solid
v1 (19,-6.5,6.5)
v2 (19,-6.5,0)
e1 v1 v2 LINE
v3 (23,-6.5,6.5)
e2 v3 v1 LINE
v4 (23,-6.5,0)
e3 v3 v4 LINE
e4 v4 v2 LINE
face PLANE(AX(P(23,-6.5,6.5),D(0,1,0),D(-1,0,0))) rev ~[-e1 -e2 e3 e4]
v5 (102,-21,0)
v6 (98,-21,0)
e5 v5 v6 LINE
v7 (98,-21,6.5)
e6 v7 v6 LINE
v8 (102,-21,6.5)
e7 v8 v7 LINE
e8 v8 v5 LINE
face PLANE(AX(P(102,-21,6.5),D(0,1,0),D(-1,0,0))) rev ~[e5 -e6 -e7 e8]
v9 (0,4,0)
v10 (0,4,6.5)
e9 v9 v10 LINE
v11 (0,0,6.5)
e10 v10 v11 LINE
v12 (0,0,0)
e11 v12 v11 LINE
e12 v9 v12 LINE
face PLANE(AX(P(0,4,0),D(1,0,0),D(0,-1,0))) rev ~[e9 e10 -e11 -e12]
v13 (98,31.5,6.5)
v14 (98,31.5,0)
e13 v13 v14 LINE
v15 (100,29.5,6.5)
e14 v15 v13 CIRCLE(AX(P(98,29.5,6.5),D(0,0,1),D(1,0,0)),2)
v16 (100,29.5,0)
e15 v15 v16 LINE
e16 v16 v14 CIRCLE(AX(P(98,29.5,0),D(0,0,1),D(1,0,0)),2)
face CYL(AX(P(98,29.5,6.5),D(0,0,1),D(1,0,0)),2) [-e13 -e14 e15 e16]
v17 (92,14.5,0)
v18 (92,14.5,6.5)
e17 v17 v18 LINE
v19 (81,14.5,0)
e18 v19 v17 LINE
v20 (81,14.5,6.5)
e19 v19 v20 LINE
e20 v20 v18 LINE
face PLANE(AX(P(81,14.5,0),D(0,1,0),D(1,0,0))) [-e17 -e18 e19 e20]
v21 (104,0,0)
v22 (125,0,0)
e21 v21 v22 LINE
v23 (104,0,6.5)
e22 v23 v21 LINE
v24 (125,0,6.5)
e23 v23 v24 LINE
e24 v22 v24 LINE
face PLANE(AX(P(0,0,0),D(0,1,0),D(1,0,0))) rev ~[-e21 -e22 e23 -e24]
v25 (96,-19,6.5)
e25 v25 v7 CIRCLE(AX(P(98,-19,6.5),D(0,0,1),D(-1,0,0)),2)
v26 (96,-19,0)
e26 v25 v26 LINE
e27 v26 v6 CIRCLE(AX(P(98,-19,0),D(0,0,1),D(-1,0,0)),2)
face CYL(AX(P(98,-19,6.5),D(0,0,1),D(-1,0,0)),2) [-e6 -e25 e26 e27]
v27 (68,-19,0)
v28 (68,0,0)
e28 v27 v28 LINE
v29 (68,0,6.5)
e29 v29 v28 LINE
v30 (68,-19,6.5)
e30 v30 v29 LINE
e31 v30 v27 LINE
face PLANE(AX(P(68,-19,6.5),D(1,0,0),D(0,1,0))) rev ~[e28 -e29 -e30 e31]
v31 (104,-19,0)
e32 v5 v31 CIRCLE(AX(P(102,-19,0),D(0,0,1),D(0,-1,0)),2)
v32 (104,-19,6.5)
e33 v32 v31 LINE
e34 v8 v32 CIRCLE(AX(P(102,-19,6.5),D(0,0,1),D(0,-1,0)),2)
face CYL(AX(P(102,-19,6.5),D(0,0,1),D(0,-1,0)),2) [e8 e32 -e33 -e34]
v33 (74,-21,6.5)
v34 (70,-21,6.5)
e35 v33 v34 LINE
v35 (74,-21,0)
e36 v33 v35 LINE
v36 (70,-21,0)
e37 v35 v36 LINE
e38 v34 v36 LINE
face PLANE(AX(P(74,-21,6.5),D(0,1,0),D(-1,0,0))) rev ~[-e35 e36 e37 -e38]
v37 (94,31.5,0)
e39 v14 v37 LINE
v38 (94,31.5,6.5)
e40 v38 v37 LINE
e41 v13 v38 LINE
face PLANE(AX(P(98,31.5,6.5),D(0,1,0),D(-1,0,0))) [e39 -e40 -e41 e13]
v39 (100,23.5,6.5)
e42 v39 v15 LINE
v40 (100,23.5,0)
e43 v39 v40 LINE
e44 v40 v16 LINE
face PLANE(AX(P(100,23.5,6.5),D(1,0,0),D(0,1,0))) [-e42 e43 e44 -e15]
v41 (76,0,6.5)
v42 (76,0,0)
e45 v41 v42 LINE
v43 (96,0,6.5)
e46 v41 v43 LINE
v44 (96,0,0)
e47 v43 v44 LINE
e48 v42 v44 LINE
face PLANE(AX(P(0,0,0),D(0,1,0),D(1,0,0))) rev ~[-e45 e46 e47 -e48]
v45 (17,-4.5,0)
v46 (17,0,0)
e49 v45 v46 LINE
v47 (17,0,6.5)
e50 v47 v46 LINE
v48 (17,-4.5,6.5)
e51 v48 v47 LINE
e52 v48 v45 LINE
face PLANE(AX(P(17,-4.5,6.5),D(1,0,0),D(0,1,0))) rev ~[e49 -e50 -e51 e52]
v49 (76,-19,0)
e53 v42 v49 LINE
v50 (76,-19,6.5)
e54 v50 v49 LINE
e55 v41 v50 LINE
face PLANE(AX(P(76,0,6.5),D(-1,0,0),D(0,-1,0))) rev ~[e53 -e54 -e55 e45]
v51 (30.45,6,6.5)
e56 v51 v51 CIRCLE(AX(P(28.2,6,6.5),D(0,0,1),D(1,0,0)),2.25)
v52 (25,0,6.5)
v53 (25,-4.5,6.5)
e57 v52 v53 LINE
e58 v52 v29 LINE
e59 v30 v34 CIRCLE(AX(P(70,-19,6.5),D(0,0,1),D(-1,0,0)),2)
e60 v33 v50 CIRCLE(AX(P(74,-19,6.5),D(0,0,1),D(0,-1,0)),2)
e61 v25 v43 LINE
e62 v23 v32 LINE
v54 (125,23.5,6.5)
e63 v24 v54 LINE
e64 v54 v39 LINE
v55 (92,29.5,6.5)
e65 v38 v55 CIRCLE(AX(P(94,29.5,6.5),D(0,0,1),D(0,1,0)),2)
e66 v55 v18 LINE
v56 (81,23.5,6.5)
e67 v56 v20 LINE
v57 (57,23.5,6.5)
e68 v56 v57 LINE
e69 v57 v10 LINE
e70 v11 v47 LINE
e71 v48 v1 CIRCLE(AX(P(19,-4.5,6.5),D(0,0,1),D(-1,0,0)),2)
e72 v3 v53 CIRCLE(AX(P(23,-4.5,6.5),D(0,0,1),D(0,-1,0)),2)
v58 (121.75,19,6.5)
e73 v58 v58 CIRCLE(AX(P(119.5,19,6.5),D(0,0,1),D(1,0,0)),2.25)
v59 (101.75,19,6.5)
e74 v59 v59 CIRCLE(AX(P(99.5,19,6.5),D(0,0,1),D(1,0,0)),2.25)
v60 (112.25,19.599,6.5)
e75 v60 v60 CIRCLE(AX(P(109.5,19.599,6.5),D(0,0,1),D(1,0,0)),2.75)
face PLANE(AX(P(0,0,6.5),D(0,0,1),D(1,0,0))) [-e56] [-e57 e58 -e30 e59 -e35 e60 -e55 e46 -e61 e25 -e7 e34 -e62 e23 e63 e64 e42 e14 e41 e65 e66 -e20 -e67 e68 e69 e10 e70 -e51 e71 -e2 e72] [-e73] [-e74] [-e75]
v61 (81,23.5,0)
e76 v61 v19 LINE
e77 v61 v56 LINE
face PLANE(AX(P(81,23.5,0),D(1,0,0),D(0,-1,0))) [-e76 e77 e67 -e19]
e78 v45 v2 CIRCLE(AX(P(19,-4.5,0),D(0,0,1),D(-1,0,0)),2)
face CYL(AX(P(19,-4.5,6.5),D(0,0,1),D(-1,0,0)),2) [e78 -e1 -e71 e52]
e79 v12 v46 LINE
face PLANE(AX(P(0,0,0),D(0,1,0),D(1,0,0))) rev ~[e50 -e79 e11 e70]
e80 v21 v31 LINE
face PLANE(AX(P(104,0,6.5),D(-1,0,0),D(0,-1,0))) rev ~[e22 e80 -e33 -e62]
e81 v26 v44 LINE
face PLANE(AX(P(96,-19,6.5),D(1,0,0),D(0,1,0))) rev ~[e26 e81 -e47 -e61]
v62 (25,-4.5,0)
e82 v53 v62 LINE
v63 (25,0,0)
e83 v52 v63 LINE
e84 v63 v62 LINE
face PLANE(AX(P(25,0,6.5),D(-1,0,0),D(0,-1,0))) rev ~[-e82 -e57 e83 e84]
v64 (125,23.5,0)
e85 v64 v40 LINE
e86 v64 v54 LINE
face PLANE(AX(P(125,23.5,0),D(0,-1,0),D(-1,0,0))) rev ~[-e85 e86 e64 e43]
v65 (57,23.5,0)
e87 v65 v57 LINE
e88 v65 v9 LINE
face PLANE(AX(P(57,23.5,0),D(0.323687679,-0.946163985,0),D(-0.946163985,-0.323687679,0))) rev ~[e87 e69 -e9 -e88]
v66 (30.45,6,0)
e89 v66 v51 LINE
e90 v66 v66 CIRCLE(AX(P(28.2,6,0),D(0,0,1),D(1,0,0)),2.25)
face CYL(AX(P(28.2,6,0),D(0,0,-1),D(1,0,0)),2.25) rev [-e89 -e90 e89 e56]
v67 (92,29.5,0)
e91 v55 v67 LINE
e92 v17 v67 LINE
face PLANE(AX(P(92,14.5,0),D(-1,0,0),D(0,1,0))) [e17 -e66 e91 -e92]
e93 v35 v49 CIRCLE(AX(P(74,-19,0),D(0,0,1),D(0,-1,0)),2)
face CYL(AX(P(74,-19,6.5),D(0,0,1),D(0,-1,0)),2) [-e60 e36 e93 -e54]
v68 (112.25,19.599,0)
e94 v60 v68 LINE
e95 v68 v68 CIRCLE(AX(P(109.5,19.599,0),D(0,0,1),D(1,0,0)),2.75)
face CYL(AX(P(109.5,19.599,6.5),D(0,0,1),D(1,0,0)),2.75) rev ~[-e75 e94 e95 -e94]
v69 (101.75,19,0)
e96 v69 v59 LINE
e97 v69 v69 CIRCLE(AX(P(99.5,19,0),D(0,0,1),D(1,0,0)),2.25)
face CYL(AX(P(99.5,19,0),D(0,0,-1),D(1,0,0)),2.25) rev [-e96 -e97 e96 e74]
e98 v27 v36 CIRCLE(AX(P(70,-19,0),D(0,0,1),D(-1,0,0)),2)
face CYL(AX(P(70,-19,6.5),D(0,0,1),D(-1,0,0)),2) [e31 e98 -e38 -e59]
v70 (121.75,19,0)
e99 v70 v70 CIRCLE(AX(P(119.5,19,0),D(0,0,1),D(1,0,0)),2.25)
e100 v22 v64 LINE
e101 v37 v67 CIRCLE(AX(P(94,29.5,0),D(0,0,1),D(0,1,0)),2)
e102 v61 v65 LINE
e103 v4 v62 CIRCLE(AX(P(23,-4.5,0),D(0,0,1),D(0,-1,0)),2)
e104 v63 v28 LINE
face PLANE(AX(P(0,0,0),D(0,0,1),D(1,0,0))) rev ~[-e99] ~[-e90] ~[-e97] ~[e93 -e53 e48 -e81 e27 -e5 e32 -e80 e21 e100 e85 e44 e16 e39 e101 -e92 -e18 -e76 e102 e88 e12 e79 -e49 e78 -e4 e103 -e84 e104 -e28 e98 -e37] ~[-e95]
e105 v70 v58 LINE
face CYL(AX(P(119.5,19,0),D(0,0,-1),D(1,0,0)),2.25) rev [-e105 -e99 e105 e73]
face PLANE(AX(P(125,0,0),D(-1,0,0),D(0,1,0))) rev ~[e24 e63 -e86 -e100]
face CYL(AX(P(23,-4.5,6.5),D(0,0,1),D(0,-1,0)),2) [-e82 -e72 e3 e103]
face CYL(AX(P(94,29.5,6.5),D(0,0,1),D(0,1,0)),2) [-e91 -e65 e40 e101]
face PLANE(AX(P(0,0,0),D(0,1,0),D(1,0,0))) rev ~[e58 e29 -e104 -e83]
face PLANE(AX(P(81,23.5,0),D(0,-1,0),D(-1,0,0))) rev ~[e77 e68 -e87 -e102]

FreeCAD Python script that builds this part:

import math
import FreeCAD as App
import Part
import Sketcher
from FreeCAD import Vector


def add_polygon(sketch, points):
    """Adds a closed chain of lines whose ends are joined by coincident constraints."""
    first, n = sketch.GeometryCount, len(points)
    for a, b in zip(points, points[1:] + points[:1]):
        sketch.addGeometry(Part.LineSegment(App.Vector(*a, 0), App.Vector(*b, 0)), False)
    for i in range(n):
        sketch.addConstraint(Sketcher.Constraint("Coincident", first + i, 2, first + (i + 1) % n, 1))

doc = App.newDocument("Part")
body = doc.addObject("PartDesign::Body", "Body")

sketch1 = body.newObject("Sketcher::SketchObject", "Sketch")
sketch1.AttachmentSupport = (doc.getObject("XY_Plane"), [""])
sketch1.MapMode = "FlatFace"
add_polygon(sketch1, [(57, 23.5), (0, 4), (0, 0), (125, 0), (125, 23.5), (92, 23.5), (92, 14.5), (81, 14.5), (81, 23.5)])
sketch1.addGeometry(Part.Circle(Vector(28.2, 6, 0), Vector(0, 0, 1), 2.2), False)
sketch1.addGeometry(Part.Circle(Vector(99.5, 19, 0), Vector(0, 0, 1), 2.2), False)
sketch1.addGeometry(Part.Circle(Vector(119.5, 19, 0), Vector(0, 0, 1), 2.2), False)
sketch1.addConstraint(Sketcher.Constraint("Vertical", 1))
sketch1.addConstraint(Sketcher.Constraint("Horizontal", 2))
sketch1.addConstraint(Sketcher.Constraint("Vertical", 3))
sketch1.addConstraint(Sketcher.Constraint("Horizontal", 4))
sketch1.addConstraint(Sketcher.Constraint("Vertical", 5))
sketch1.addConstraint(Sketcher.Constraint("Horizontal", 6))
sketch1.addConstraint(Sketcher.Constraint("Vertical", 7))
sketch1.addConstraint(Sketcher.Constraint("Horizontal", 8))
sketch1.addConstraint(Sketcher.Constraint("Coincident", 1, 2, -1, 1))
sketch1.addConstraint(Sketcher.Constraint("Equal", 9, 10))
sketch1.addConstraint(Sketcher.Constraint("Equal", 10, 11))
sketch1.addConstraint(Sketcher.Constraint("Horizontal", 10, 3, 11, 3))
sketch1.addConstraint(Sketcher.Constraint("Horizontal", 4, 2, 7, 2))
sketch1.addConstraint(Sketcher.Constraint("Diameter", 9, 4.5))
sketch1.addConstraint(Sketcher.Constraint("DistanceX", 2, 1, 2, 2, 125.0))
sketch1.addConstraint(Sketcher.Constraint("DistanceX", 4, 2, 4, 1, 33.0))
sketch1.addConstraint(Sketcher.Constraint("DistanceX", 6, 2, 6, 1, 11.0))
sketch1.addConstraint(Sketcher.Constraint("DistanceX", 8, 2, 8, 1, 24.0))
sketch1.addConstraint(Sketcher.Constraint("DistanceY", 1, 2, 1, 1, 4.0))
sketch1.addConstraint(Sketcher.Constraint("DistanceY", 5, 2, 5, 1, 9.0))
sketch1.addConstraint(Sketcher.Constraint("DistanceY", 3, 1, 3, 2, 23.5))
sketch1.addConstraint(Sketcher.Constraint("DistanceY", -1, 1, 9, 3, 6.0))
sketch1.addConstraint(Sketcher.Constraint("DistanceX", 10, 3, 11, 3, 20.0))
sketch1.addConstraint(Sketcher.Constraint("DistanceX", -1, 1, 9, 3, 28.2))
sketch1.addConstraint(Sketcher.Constraint("DistanceX", 11, 3, 2, 2, 5.5))
sketch1.addConstraint(Sketcher.Constraint("DistanceY", 11, 3, 3, 2, 4.5))
pad1 = body.newObject("PartDesign::Pad", "Pad")
pad1.Profile = sketch1
pad1.Length = 6.5

sketch2 = body.newObject("Sketcher::SketchObject", "Sketch001")
sketch2.AttachmentSupport = (doc.getObject("XY_Plane"), [""])
sketch2.MapMode = "FlatFace"
sketch2.AttachmentOffset = App.Placement(Vector(0, 0, 6.5), App.Rotation())
sketch2.addGeometry(Part.Circle(Vector(109.5, 19.6, 0), Vector(0, 0, 1), 2.8), False)
sketch2.addConstraint(Sketcher.Constraint("Diameter", 0, 5.5))
sketch2.addConstraint(Sketcher.Constraint("DistanceX", -1, 1, 0, 3, 109.5))
sketch2.addConstraint(Sketcher.Constraint("DistanceY", -1, 1, 0, 3, 19.599))
pocket1 = body.newObject("PartDesign::Pocket", "Pocket")
pocket1.Profile = sketch2
pocket1.Length = 6.5

sketch3 = body.newObject("Sketcher::SketchObject", "Sketch002")
sketch3.AttachmentSupport = (doc.getObject("XY_Plane"), [""])
sketch3.MapMode = "FlatFace"
sketch3.AttachmentOffset = App.Placement(Vector(0, 0, 6.5), App.Rotation())
sketch3.addGeometry(Part.LineSegment(Vector(104, 0, 0), Vector(96, 0, 0)), False)
sketch3.addGeometry(Part.LineSegment(Vector(96, 0, 0), Vector(96, -19, 0)), False)
sketch3.addGeometry(Part.ArcOfCircle(Part.Circle(Vector(98, -19, 0), Vector(0, 0, 1), 2), math.radians(180), math.radians(270)), False)
sketch3.addGeometry(Part.LineSegment(Vector(98, -21, 0), Vector(102, -21, 0)), False)
sketch3.addGeometry(Part.ArcOfCircle(Part.Circle(Vector(102, -19, 0), Vector(0, 0, 1), 2), math.radians(-90), math.radians(0)), False)
sketch3.addGeometry(Part.LineSegment(Vector(104, -19, 0), Vector(104, 0, 0)), False)
sketch3.addGeometry(Part.LineSegment(Vector(76, 0, 0), Vector(68, 0, 0)), False)
sketch3.addGeometry(Part.LineSegment(Vector(68, 0, 0), Vector(68, -19, 0)), False)
sketch3.addGeometry(Part.ArcOfCircle(Part.Circle(Vector(70, -19, 0), Vector(0, 0, 1), 2), math.radians(180), math.radians(270)), False)
sketch3.addGeometry(Part.LineSegment(Vector(70, -21, 0), Vector(74, -21, 0)), False)
sketch3.addGeometry(Part.ArcOfCircle(Part.Circle(Vector(74, -19, 0), Vector(0, 0, 1), 2), math.radians(-90), math.radians(0)), False)
sketch3.addGeometry(Part.LineSegment(Vector(76, -19, 0), Vector(76, 0, 0)), False)
sketch3.addGeometry(Part.LineSegment(Vector(25, 0, 0), Vector(17, 0, 0)), False)
sketch3.addGeometry(Part.LineSegment(Vector(17, 0, 0), Vector(17, -4.5, 0)), False)
sketch3.addGeometry(Part.ArcOfCircle(Part.Circle(Vector(19, -4.5, 0), Vector(0, 0, 1), 2), math.radians(180), math.radians(270)), False)
sketch3.addGeometry(Part.LineSegment(Vector(19, -6.5, 0), Vector(23, -6.5, 0)), False)
sketch3.addGeometry(Part.ArcOfCircle(Part.Circle(Vector(23, -4.5, 0), Vector(0, 0, 1), 2), math.radians(-90), math.radians(0)), False)
sketch3.addGeometry(Part.LineSegment(Vector(25, -4.5, 0), Vector(25, 0, 0)), False)
sketch3.addGeometry(Part.LineSegment(Vector(92, 23.5, 0), Vector(100, 23.5, 0)), False)
sketch3.addGeometry(Part.LineSegment(Vector(100, 23.5, 0), Vector(100, 29.5, 0)), False)
sketch3.addGeometry(Part.ArcOfCircle(Part.Circle(Vector(98, 29.5, 0), Vector(0, 0, 1), 2), math.radians(0), math.radians(90)), False)
sketch3.addGeometry(Part.LineSegment(Vector(98, 31.5, 0), Vector(94, 31.5, 0)), False)
sketch3.addGeometry(Part.ArcOfCircle(Part.Circle(Vector(94, 29.5, 0), Vector(0, 0, 1), 2), math.radians(90), math.radians(180)), False)
sketch3.addGeometry(Part.LineSegment(Vector(92, 29.5, 0), Vector(92, 23.5, 0)), False)
sketch3.addConstraint(Sketcher.Constraint("Coincident", 0, 2, 1, 1))
sketch3.addConstraint(Sketcher.Constraint("Tangent", 1, 2, 2, 1))
sketch3.addConstraint(Sketcher.Constraint("Tangent", 2, 2, 3, 1))
sketch3.addConstraint(Sketcher.Constraint("Tangent", 3, 2, 4, 1))
sketch3.addConstraint(Sketcher.Constraint("Tangent", 4, 2, 5, 1))
sketch3.addConstraint(Sketcher.Constraint("Coincident", 5, 2, 0, 1))
sketch3.addConstraint(Sketcher.Constraint("Coincident", 6, 2, 7, 1))
sketch3.addConstraint(Sketcher.Constraint("Tangent", 7, 2, 8, 1))
sketch3.addConstraint(Sketcher.Constraint("Tangent", 8, 2, 9, 1))
sketch3.addConstraint(Sketcher.Constraint("Tangent", 9, 2, 10, 1))
sketch3.addConstraint(Sketcher.Constraint("Tangent", 10, 2, 11, 1))
sketch3.addConstraint(Sketcher.Constraint("Coincident", 11, 2, 6, 1))
sketch3.addConstraint(Sketcher.Constraint("Coincident", 12, 2, 13, 1))
sketch3.addConstraint(Sketcher.Constraint("Tangent", 13, 2, 14, 1))
sketch3.addConstraint(Sketcher.Constraint("Tangent", 14, 2, 15, 1))
sketch3.addConstraint(Sketcher.Constraint("Tangent", 15, 2, 16, 1))
sketch3.addConstraint(Sketcher.Constraint("Tangent", 16, 2, 17, 1))
sketch3.addConstraint(Sketcher.Constraint("Coincident", 17, 2, 12, 1))
sketch3.addConstraint(Sketcher.Constraint("Coincident", 18, 2, 19, 1))
sketch3.addConstraint(Sketcher.Constraint("Tangent", 19, 2, 20, 1))
sketch3.addConstraint(Sketcher.Constraint("Tangent", 20, 2, 21, 1))
sketch3.addConstraint(Sketcher.Constraint("Tangent", 21, 2, 22, 1))
sketch3.addConstraint(Sketcher.Constraint("Tangent", 22, 2, 23, 1))
sketch3.addConstraint(Sketcher.Constraint("Coincident", 23, 2, 18, 1))
sketch3.addConstraint(Sketcher.Constraint("Horizontal", 0))
sketch3.addConstraint(Sketcher.Constraint("Vertical", 1))
sketch3.addConstraint(Sketcher.Constraint("Horizontal", 3))
sketch3.addConstraint(Sketcher.Constraint("Vertical", 5))
sketch3.addConstraint(Sketcher.Constraint("Horizontal", 6))
sketch3.addConstraint(Sketcher.Constraint("Vertical", 7))
sketch3.addConstraint(Sketcher.Constraint("Horizontal", 9))
sketch3.addConstraint(Sketcher.Constraint("Vertical", 11))
sketch3.addConstraint(Sketcher.Constraint("Horizontal", 12))
sketch3.addConstraint(Sketcher.Constraint("Vertical", 13))
sketch3.addConstraint(Sketcher.Constraint("Horizontal", 15))
sketch3.addConstraint(Sketcher.Constraint("Vertical", 17))
sketch3.addConstraint(Sketcher.Constraint("Horizontal", 18))
sketch3.addConstraint(Sketcher.Constraint("Vertical", 19))
sketch3.addConstraint(Sketcher.Constraint("Horizontal", 21))
sketch3.addConstraint(Sketcher.Constraint("Vertical", 23))
sketch3.addConstraint(Sketcher.Constraint("Equal", 2, 4))
sketch3.addConstraint(Sketcher.Constraint("Equal", 4, 8))
sketch3.addConstraint(Sketcher.Constraint("Equal", 8, 10))
sketch3.addConstraint(Sketcher.Constraint("Equal", 10, 14))
sketch3.addConstraint(Sketcher.Constraint("Equal", 14, 16))
sketch3.addConstraint(Sketcher.Constraint("Equal", 16, 20))
sketch3.addConstraint(Sketcher.Constraint("Equal", 20, 22))
sketch3.addConstraint(Sketcher.Constraint("PointOnObject", 0, 2, -1))
sketch3.addConstraint(Sketcher.Constraint("PointOnObject", 6, 2, -1))
sketch3.addConstraint(Sketcher.Constraint("PointOnObject", 12, 2, -1))
sketch3.addConstraint(Sketcher.Constraint("Horizontal", 4, 3, 8, 3))
sketch3.addConstraint(Sketcher.Constraint("Vertical", 2, 3, 20, 3))
sketch3.addConstraint(Sketcher.Constraint("Equal", 0, 6))
sketch3.addConstraint(Sketcher.Constraint("Equal", 6, 12))
sketch3.addConstraint(Sketcher.Constraint("Equal", 12, 18))
sketch3.addConstraint(Sketcher.Constraint("Radius", 2, 2.0))
sketch3.addConstraint(Sketcher.Constraint("DistanceX", 0, 2, 0, 1, 8.0))
sketch3.addConstraint(Sketcher.Constraint("DistanceY", 2, 2, -1, 1, 21.0))
sketch3.addConstraint(Sketcher.Constraint("DistanceX", -1, 1, 12, 2, 17.0))
sketch3.addConstraint(Sketcher.Constraint("DistanceX", 10, 3, 22, 3, 20.0))
sketch3.addConstraint(Sketcher.Constraint("DistanceY", 18, 2, 20, 2, 8.0))
sketch3.addConstraint(Sketcher.Constraint("DistanceY", 14, 2, -1, 1, 6.5))
sketch3.addConstraint(Sketcher.Constraint("DistanceX", -1, 1, 2, 3, 98.0))
sketch3.addConstraint(Sketcher.Constraint("DistanceY", 16, 3, 20, 3, 34.0))
pad2 = body.newObject("PartDesign::Pad", "Pad001")
pad2.Profile = sketch3
pad2.Length = 6.5
pad2.Reversed = True

doc.recompute()
